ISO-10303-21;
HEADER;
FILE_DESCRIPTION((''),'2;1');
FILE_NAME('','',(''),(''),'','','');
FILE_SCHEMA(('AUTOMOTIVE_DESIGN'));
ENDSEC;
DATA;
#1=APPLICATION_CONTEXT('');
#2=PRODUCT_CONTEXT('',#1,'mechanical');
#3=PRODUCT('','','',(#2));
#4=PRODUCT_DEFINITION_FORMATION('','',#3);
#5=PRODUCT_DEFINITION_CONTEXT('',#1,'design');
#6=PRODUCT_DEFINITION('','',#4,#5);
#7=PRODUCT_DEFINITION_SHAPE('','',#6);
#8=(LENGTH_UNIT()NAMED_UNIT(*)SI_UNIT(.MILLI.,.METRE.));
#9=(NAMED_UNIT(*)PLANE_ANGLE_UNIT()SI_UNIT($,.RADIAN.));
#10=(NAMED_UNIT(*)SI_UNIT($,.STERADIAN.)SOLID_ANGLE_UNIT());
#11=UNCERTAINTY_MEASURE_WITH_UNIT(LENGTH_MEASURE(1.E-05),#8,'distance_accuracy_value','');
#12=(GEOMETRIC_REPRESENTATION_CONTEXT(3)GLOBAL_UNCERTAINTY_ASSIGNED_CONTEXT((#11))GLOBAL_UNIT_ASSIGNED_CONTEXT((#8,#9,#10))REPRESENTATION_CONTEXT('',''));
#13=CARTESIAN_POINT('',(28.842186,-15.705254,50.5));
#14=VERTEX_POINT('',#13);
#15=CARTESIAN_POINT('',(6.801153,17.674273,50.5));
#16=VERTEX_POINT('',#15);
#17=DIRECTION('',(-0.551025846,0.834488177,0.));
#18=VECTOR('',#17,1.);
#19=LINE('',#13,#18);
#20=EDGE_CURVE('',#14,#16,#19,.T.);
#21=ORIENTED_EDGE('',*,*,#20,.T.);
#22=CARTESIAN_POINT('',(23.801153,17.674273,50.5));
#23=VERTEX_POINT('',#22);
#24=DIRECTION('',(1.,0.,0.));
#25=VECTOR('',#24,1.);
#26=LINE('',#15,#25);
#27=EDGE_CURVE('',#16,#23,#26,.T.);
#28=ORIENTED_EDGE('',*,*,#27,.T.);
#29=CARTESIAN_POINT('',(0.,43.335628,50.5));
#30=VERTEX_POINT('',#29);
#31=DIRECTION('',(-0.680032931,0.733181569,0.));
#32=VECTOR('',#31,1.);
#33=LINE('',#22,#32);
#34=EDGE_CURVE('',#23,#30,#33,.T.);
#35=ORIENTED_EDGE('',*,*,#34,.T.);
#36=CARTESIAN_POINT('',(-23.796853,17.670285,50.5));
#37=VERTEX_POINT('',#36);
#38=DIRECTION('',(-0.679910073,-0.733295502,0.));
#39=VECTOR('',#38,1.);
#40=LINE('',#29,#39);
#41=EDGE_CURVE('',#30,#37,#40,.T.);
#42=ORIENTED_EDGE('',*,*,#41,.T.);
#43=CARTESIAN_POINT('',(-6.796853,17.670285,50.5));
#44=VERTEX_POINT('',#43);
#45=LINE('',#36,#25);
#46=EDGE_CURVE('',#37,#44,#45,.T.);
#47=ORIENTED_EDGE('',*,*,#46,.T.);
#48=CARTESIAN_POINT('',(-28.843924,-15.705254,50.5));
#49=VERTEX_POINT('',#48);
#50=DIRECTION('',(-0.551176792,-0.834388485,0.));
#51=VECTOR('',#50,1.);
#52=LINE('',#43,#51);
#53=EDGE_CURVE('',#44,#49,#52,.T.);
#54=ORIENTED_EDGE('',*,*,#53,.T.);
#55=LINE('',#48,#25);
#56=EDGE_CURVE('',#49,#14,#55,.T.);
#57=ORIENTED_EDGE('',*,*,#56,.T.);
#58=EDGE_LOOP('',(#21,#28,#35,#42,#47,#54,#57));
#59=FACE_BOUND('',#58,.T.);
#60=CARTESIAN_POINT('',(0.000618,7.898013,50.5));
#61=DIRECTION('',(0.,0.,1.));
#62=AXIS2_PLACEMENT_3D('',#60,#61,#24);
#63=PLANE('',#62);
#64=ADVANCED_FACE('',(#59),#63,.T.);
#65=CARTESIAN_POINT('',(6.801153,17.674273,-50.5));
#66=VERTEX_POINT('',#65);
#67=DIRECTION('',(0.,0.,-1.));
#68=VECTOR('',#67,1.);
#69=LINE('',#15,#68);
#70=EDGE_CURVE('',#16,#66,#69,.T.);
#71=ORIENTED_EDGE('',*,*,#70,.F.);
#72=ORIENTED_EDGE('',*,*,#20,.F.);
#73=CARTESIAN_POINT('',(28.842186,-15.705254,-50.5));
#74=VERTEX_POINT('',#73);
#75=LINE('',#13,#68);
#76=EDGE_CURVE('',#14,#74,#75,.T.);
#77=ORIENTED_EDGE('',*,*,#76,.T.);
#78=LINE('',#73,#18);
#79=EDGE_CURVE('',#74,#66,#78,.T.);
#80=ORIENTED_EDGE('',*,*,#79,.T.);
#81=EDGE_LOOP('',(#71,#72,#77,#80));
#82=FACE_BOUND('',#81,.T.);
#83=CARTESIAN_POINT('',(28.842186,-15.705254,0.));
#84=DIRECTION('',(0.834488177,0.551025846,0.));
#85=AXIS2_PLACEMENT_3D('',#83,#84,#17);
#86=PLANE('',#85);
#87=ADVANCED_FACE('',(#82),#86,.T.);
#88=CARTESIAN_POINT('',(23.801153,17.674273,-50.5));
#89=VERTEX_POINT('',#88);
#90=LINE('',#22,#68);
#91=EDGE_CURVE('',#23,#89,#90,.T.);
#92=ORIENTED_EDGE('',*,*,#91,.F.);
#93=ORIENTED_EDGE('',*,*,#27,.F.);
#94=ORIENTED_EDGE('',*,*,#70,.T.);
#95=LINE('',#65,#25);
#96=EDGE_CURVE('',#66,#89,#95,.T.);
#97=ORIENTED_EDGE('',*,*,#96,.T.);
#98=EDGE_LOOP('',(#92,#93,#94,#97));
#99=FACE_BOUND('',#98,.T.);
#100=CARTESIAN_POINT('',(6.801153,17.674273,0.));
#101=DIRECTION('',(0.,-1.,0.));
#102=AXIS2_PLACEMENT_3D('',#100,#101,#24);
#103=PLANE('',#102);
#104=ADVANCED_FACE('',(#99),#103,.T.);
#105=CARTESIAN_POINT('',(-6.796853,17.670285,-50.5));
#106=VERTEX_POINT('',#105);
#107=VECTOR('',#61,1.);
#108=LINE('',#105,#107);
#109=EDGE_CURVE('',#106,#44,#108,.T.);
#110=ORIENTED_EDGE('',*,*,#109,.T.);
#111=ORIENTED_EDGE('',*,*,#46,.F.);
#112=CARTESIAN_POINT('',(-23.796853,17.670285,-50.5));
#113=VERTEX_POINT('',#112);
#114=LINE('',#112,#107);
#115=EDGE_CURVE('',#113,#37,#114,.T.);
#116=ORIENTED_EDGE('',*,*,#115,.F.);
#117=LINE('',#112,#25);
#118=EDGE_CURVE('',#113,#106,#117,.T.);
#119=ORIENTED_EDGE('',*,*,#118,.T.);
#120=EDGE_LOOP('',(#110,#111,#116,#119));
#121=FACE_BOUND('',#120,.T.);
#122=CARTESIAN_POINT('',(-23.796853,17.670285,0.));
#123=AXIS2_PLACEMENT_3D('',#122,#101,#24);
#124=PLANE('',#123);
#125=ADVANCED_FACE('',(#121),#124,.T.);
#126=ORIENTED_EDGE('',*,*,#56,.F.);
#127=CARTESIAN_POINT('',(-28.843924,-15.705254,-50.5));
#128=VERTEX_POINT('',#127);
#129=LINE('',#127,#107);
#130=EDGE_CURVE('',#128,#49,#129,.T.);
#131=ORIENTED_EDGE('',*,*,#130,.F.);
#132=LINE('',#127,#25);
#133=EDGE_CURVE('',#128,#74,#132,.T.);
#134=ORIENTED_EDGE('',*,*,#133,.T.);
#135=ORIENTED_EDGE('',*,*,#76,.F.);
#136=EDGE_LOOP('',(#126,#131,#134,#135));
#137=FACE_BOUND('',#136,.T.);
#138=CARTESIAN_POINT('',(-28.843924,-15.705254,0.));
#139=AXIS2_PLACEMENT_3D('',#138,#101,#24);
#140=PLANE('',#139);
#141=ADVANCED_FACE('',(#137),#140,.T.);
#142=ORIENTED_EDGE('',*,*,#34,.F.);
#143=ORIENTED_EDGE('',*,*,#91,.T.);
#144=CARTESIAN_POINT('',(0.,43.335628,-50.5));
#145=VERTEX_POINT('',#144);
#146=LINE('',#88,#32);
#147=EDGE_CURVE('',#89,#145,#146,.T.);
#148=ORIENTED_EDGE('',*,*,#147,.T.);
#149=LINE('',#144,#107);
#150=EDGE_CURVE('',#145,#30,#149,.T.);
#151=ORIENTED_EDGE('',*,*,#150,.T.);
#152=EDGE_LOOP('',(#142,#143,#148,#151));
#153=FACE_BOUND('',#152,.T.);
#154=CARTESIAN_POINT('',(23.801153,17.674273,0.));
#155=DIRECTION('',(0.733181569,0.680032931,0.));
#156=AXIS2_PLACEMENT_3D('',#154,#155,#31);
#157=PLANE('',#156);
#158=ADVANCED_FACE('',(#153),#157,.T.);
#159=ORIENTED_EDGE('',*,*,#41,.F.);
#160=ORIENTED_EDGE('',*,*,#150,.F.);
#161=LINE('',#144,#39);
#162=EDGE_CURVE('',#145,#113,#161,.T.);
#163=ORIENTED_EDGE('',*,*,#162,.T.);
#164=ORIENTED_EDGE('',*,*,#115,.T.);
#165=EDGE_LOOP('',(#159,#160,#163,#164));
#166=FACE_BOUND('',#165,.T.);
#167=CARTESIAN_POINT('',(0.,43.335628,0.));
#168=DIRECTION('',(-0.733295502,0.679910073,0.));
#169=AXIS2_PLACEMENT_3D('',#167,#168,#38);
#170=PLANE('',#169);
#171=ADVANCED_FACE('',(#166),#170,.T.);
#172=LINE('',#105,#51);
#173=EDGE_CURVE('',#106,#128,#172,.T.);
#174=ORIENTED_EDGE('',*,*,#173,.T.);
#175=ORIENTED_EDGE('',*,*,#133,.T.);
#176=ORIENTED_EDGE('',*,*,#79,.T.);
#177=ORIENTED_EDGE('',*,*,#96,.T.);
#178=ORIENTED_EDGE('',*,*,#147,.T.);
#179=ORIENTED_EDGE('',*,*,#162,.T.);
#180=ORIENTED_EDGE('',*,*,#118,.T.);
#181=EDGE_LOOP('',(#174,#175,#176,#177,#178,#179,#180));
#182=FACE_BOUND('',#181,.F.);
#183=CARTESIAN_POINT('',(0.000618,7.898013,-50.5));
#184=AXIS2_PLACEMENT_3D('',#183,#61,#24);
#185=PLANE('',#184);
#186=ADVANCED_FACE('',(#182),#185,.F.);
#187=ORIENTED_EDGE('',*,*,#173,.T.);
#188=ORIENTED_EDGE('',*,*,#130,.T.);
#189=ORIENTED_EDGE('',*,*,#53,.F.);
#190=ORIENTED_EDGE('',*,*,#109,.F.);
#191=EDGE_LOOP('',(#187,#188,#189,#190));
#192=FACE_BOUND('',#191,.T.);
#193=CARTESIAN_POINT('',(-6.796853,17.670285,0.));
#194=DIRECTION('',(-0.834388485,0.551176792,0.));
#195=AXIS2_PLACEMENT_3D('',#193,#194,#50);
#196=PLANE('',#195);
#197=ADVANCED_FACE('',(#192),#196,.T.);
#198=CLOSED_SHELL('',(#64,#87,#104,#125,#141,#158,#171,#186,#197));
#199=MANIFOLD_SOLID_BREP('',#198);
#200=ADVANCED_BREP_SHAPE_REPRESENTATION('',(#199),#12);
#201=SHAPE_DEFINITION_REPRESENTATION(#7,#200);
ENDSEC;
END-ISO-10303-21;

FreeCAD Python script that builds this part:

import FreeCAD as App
import Part
import Sketcher

V = App.Vector
Q = App.Units.Quantity

doc = App.newDocument("Part")
params = doc.addObject("Spreadsheet::Sheet", "Params")
for row, (alias, value) in enumerate([
    ("sketch1_width", "17 mm"),
    ("sketch1_length", "35 mm"),
    ("sketch1_length2", "40 mm"),
    ("pad1_length", "101 mm"),
], start=1):
    params.set(f"A{row}", alias)
    params.set(f"B{row}", "=" + value)
    params.setAlias(f"B{row}", alias)

body = doc.addObject("PartDesign::Body", "Body")

# Sketch on XY plane
sketch1 = body.newObject("Sketcher::SketchObject", "Sketch")
sketch1.AttachmentSupport = (doc.getObject("XY_Plane"), [""])
sketch1.MapMode = "FlatFace"
sketch1.addGeometry(Part.LineSegment(V(24, 18, 0), V(0, 43, 0)), False)
sketch1.addGeometry(Part.LineSegment(V(0, 43, 0), V(-24, 18, 0)), False)
sketch1.addGeometry(Part.LineSegment(V(-24, 18, 0), V(-7, 18, 0)), False)
sketch1.addGeometry(Part.LineSegment(V(-7, 18, 0), V(-29, -16, 0)), False)
sketch1.addGeometry(Part.LineSegment(V(-29, -16, 0), V(29, -16, 0)), False)
sketch1.addGeometry(Part.LineSegment(V(29, -16, 0), V(7, 18, 0)), False)
sketch1.addGeometry(Part.LineSegment(V(7, 18, 0), V(24, 18, 0)), False)
sketch1.addConstraint(Sketcher.Constraint("Coincident", 0, 2, 1, 1))
sketch1.addConstraint(Sketcher.Constraint("Coincident", 1, 2, 2, 1))
sketch1.addConstraint(Sketcher.Constraint("Coincident", 2, 2, 3, 1))
sketch1.addConstraint(Sketcher.Constraint("Coincident", 3, 2, 4, 1))
sketch1.addConstraint(Sketcher.Constraint("Coincident", 4, 2, 5, 1))
sketch1.addConstraint(Sketcher.Constraint("Coincident", 5, 2, 6, 1))
sketch1.addConstraint(Sketcher.Constraint("Coincident", 6, 2, 0, 1))
sketch1.addConstraint(Sketcher.Constraint("Horizontal", 2))
sketch1.addConstraint(Sketcher.Constraint("Horizontal", 4))
sketch1.addConstraint(Sketcher.Constraint("Horizontal", 6))
sketch1.addConstraint(Sketcher.Constraint("PointOnObject", 0, 2, -2))
sketch1.addConstraint(Sketcher.Constraint("Equal", 2, 6))
sketch1.addConstraint(Sketcher.Constraint("Equal", 0, 1))
sketch1.addConstraint(Sketcher.Constraint("Equal", 3, 5))
sketch1.addConstraint(Sketcher.Constraint("DistanceX", 2, 1, 2, 2, Q("17 mm")))
sketch1.addConstraint(Sketcher.Constraint("Distance", 0, Q("35 mm")))
sketch1.addConstraint(Sketcher.Constraint("Distance", 3, Q("40 mm")))
sketch1.addConstraint(Sketcher.Constraint("DistanceX", 4, 1, 4, 2, Q("57.686111 mm")))
sketch1.addConstraint(Sketcher.Constraint("DistanceX", 3, 2, 1, 2, Q("5.047072 mm")))
sketch1.addConstraint(Sketcher.Constraint("DistanceY", 3, 2, 0, 2, Q("59.040882 mm")))
sketch1.addConstraint(Sketcher.Constraint("DistanceY", -1, 1, 0, 2, Q("43.335628 mm")))
sketch1.setExpression("Constraints[14]", "Params.sketch1_width")
sketch1.setExpression("Constraints[15]", "Params.sketch1_length")
sketch1.setExpression("Constraints[16]", "Params.sketch1_length2")
pad1 = body.newObject("PartDesign::Pad", "Pad")
pad1.Profile = sketch1
pad1.setExpression("Length", "Params.pad1_length")
pad1.Midplane = True

doc.recompute()
